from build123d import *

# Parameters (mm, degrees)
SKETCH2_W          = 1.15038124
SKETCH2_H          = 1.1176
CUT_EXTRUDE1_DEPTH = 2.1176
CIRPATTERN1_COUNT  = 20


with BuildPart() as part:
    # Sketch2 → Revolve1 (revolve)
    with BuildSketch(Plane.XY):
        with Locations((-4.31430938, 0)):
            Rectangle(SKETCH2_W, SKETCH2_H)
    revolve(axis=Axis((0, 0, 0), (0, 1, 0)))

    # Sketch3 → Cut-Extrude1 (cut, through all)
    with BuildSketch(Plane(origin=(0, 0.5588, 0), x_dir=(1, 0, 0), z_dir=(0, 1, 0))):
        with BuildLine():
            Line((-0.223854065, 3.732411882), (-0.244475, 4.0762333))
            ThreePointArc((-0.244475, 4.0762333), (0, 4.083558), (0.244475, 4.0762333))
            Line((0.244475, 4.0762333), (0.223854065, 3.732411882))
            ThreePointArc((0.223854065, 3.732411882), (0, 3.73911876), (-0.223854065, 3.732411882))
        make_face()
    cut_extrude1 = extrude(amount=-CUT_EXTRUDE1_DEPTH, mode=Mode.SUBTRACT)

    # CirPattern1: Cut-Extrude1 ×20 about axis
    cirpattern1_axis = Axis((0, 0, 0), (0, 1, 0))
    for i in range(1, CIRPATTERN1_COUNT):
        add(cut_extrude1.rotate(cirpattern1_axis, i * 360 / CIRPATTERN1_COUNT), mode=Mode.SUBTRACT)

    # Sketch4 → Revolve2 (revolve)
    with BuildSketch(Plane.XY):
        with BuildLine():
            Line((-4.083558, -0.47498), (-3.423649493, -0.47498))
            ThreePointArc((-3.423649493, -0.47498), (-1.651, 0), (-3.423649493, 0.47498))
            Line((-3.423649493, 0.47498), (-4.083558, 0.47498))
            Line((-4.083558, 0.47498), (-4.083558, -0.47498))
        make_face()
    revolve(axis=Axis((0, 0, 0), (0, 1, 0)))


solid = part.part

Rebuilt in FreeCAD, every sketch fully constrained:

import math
import FreeCAD as App
import Part
import Sketcher
Q = App.Units.Quantity

doc = App.newDocument("Part")
body = doc.addObject("PartDesign::Body", "Body")

sketch1 = body.newObject("Sketcher::SketchObject", "Sketch")
sketch1.AttachmentSupport = (doc.getObject("XY_Plane"), [""])
sketch1.MapMode = "FlatFace"
sketch1.addGeometry([
    Part.LineSegment(App.Vector(-4.9, 0.6, 0), App.Vector(-4.9, -0.6, 0)),
    Part.LineSegment(App.Vector(-4.9, -0.6, 0), App.Vector(-3.7, -0.6, 0)),
    Part.LineSegment(App.Vector(-3.7, -0.6, 0), App.Vector(-3.7, 0.6, 0)),
    Part.LineSegment(App.Vector(-3.7, 0.6, 0), App.Vector(-4.9, 0.6, 0)),
], False)
sketch1.addConstraint([
    Sketcher.Constraint("Coincident", 0, 2, 1, 1),
    Sketcher.Constraint("Coincident", 1, 2, 2, 1),
    Sketcher.Constraint("Coincident", 2, 2, 3, 1),
    Sketcher.Constraint("Coincident", 3, 2, 0, 1),
    Sketcher.Constraint("Vertical", 0),
    Sketcher.Constraint("Horizontal", 1),
    Sketcher.Constraint("Vertical", 2),
    Sketcher.Constraint("Horizontal", 3),
    Sketcher.Constraint("DistanceY", 0, 2, 0, 1, Q("0.044 in")),
    Sketcher.Constraint("DistanceY", 0, 2, -1, 1, Q("0.022 in")),
    Sketcher.Constraint("DistanceX", 0, 2, -1, 1, Q("0.1925 in")),
    Sketcher.Constraint("DistanceX", 1, 1, 1, 2, Q("1.150381 mm")),
])
revolution = body.newObject("PartDesign::Revolution", "Revolution")
revolution.Profile = sketch1
revolution.ReferenceAxis = (sketch1, ["V_Axis"])
revolution.Angle = 360

sketch2 = body.newObject("Sketcher::SketchObject", "Sketch001")
sketch2.AttachmentSupport = (doc.getObject("XZ_Plane"), [""])
sketch2.MapMode = "FlatFace"
sketch2.AttachmentOffset = App.Placement(App.Vector(0, 0, -0.022 * 25.4), App.Rotation())
sketch2.addGeometry([
    Part.LineSegment(App.Vector(-0.24, -4.08, 0), App.Vector(-0.22, -3.73, 0)),
    Part.ArcOfCircle(Part.Circle(App.Vector(0, 0, 0), App.Vector(0, 0, 1), 3.74), math.radians(-93.43), math.radians(-86.57)),
    Part.LineSegment(App.Vector(0.22, -3.73, 0), App.Vector(0.24, -4.08, 0)),
    Part.ArcOfCircle(Part.Circle(App.Vector(0, 0, 0), App.Vector(0, 0, 1), 4.08), math.radians(-93.43), math.radians(-86.57)),
], False)
sketch2.addConstraint([
    Sketcher.Constraint("Coincident", 0, 2, 1, 1),
    Sketcher.Constraint("Coincident", 1, 2, 2, 1),
    Sketcher.Constraint("Coincident", 2, 2, 3, 2),
    Sketcher.Constraint("Coincident", 3, 1, 0, 1),
    Sketcher.Constraint("Coincident", 1, 3, -1, 1),
    Sketcher.Constraint("Coincident", 3, 3, -1, 1),
    Sketcher.Constraint("Horizontal", 0, 2, 1, 2),
    Sketcher.Constraint("Horizontal", 2, 2, 3, 1),
    Sketcher.Constraint("Radius", 1, Q("3.739119 mm")),
    Sketcher.Constraint("Radius", 3, Q("4.083558 mm")),
    Sketcher.Constraint("DistanceY", 0, 2, -1, 1, Q("3.732412 mm")),
    Sketcher.Constraint("DistanceX", 1, 2, 2, 2, Q("0.020621 mm")),
])
pocket1 = body.newObject("PartDesign::Pocket", "Pocket")
pocket1.Profile = sketch2
pocket1.Type = "ThroughAll"
pocket1.Reversed = True
doc.recompute()

polarpattern = body.newObject("PartDesign::PolarPattern", "PolarPattern")
polarpattern.Originals = [pocket1]
polarpattern.Axis = (doc.getObject("Y_Axis"), [""])
polarpattern.Angle = 360
polarpattern.Occurrences = 20
body.Tip = polarpattern

sketch3 = body.newObject("Sketcher::SketchObject", "Sketch002")
sketch3.AttachmentSupport = (doc.getObject("XY_Plane"), [""])
sketch3.MapMode = "FlatFace"
sketch3.addGeometry([
    Part.LineSegment(App.Vector(-4.1, -0.5, 0), App.Vector(-3.4, -0.5, 0)),
    Part.ArcOfCircle(Part.Circle(App.Vector(-2.6, 0, 0), App.Vector(0, 0, 1), 0.9), math.radians(-150), math.radians(150)),
    Part.LineSegment(App.Vector(-3.4, 0.5, 0), App.Vector(-4.1, 0.5, 0)),
    Part.LineSegment(App.Vector(-4.1, 0.5, 0), App.Vector(-4.1, -0.5, 0)),
], False)
sketch3.addConstraint([
    Sketcher.Constraint("Coincident", 0, 2, 1, 1),
    Sketcher.Constraint("Coincident", 1, 2, 2, 1),
    Sketcher.Constraint("Coincident", 2, 2, 3, 1),
    Sketcher.Constraint("Coincident", 3, 2, 0, 1),
    Sketcher.Constraint("Horizontal", 0),
    Sketcher.Constraint("Horizontal", 2),
    Sketcher.Constraint("Vertical", 3),
    Sketcher.Constraint("Symmetric", 0, 2, 1, 2, -1),
    Sketcher.Constraint("Radius", 1, Q("0.0374 in")),
    Sketcher.Constraint("DistanceY", 3, 2, 3, 1, Q("0.0374 in")),
    Sketcher.Constraint("DistanceX", 1, 3, -1, 1, Q("0.1024 in")),
    Sketcher.Constraint("DistanceX", 0, 1, 0, 2, Q("0.659909 mm")),
])
revolution2 = body.newObject("PartDesign::Revolution", "Revolution001")
revolution2.Profile = sketch3
revolution2.ReferenceAxis = (sketch3, ["V_Axis"])
revolution2.Angle = 360

doc.recompute()
